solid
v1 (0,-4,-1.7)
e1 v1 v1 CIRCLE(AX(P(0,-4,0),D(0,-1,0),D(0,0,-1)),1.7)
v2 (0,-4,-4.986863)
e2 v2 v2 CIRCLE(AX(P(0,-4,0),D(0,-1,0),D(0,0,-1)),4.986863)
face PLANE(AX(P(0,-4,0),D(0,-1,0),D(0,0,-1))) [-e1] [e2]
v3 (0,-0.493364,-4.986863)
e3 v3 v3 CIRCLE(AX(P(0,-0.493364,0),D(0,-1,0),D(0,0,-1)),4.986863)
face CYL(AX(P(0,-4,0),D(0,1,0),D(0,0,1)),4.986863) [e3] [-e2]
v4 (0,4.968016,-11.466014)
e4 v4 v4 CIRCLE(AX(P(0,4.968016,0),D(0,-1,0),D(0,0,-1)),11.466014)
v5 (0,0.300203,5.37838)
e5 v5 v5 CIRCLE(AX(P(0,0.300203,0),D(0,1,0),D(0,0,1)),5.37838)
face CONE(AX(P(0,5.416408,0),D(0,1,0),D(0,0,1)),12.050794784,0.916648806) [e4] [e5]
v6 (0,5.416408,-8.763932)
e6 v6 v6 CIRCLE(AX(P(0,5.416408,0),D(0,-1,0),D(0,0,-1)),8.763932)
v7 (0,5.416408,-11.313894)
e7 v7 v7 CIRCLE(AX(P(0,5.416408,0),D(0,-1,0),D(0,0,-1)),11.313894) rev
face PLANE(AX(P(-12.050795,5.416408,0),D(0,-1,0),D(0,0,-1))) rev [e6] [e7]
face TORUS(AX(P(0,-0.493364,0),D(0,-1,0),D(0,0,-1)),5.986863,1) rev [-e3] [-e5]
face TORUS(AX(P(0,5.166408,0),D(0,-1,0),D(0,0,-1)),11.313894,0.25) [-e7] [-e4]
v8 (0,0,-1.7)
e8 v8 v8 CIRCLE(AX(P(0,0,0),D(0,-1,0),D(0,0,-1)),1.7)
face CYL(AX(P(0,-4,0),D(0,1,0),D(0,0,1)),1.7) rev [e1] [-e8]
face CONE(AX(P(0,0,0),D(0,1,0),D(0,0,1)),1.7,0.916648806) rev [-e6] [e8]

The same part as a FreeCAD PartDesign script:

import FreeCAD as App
import Part
import Sketcher


def edges_at(feature, points):
    """Names of the edges that pass closest to the given points."""
    edges = feature.Shape.Edges
    near = lambda p: min(range(len(edges)), key=lambda i: edges[i].distToShape(Part.Vertex(*p))[0])
    return sorted({f"Edge{near(p) + 1}" for p in points})

doc = App.newDocument("Part")
body = doc.addObject("PartDesign::Body", "Body")

sketch1 = body.newObject("Sketcher::SketchObject", "Sketch")
sketch1.AttachmentSupport = (doc.getObject("XY_Plane"), [""])
sketch1.MapMode = "FlatFace"
sketch1.addGeometry([
    Part.LineSegment(App.Vector(-4.986863, 0, 0), App.Vector(-1.7, 0, 0)),
    Part.LineSegment(App.Vector(-1.7, 0, 0), App.Vector(-8.763932, 5.416408, 0)),
    Part.LineSegment(App.Vector(-8.763932, 5.416408, 0), App.Vector(-12.050795, 5.416408, 0)),
    Part.LineSegment(App.Vector(-12.050795, 5.416408, 0), App.Vector(-4.986863, 0, 0)),
], False)
sketch1.addConstraint([
    Sketcher.Constraint("Coincident", 0, 2, 1, 1),
    Sketcher.Constraint("Coincident", 1, 2, 2, 1),
    Sketcher.Constraint("Coincident", 2, 2, 3, 1),
    Sketcher.Constraint("Coincident", 3, 2, 0, 1),
    Sketcher.Constraint("Horizontal", 0),
    Sketcher.Constraint("Horizontal", 2),
    Sketcher.Constraint("PointOnObject", 0, 2, -1),
    Sketcher.Constraint("Parallel", 1, 3),
    Sketcher.Constraint("DistanceX", 0, 2, -1, 1, 1.7),
    Sketcher.Constraint("DistanceX", 0, 1, 0, 2, 3.286863),
    Sketcher.Constraint("DistanceX", 1, 2, 3, 2, 3.777069),
    Sketcher.Constraint("Distance", 1, 8.901495),
])
revolution = body.newObject("PartDesign::Revolution", "Revolution")
revolution.Profile = sketch1
revolution.ReferenceAxis = (sketch1, ["V_Axis"])
revolution.Angle = 360

sketch2 = body.newObject("Sketcher::SketchObject", "Sketch001")
sketch2.AttachmentSupport = (doc.getObject("XZ_Plane"), [""])
sketch2.MapMode = "FlatFace"
sketch2.addGeometry([
    Part.Circle(App.Vector(0, 0, 0), App.Vector(0, 0, 1), 4.986863),
    Part.Circle(App.Vector(0, 0, 0), App.Vector(0, 0, 1), 1.7),
], False)
sketch2.addConstraint([
    Sketcher.Constraint("Coincident", 0, 3, -1, 1),
    Sketcher.Constraint("Coincident", 1, 3, -1, 1),
    Sketcher.Constraint("Diameter", 1, 3.4),
    Sketcher.Constraint("Diameter", 0, 9.973726),
])
pad1 = body.newObject("PartDesign::Pad", "Pad")
pad1.Profile = sketch2
pad1.Length = 4
doc.recompute()

fillet = body.newObject("PartDesign::Fillet", "Fillet")
fillet.Base = (pad1, edges_at(pad1, [(12.051, 5.416, 0)]))
fillet.Radius = 0.25
doc.recompute()

fillet2 = body.newObject("PartDesign::Fillet", "Fillet001")
fillet2.Base = (fillet, edges_at(fillet, [(0, 0, -4.987)]))
fillet2.Radius = 1

doc.recompute()
